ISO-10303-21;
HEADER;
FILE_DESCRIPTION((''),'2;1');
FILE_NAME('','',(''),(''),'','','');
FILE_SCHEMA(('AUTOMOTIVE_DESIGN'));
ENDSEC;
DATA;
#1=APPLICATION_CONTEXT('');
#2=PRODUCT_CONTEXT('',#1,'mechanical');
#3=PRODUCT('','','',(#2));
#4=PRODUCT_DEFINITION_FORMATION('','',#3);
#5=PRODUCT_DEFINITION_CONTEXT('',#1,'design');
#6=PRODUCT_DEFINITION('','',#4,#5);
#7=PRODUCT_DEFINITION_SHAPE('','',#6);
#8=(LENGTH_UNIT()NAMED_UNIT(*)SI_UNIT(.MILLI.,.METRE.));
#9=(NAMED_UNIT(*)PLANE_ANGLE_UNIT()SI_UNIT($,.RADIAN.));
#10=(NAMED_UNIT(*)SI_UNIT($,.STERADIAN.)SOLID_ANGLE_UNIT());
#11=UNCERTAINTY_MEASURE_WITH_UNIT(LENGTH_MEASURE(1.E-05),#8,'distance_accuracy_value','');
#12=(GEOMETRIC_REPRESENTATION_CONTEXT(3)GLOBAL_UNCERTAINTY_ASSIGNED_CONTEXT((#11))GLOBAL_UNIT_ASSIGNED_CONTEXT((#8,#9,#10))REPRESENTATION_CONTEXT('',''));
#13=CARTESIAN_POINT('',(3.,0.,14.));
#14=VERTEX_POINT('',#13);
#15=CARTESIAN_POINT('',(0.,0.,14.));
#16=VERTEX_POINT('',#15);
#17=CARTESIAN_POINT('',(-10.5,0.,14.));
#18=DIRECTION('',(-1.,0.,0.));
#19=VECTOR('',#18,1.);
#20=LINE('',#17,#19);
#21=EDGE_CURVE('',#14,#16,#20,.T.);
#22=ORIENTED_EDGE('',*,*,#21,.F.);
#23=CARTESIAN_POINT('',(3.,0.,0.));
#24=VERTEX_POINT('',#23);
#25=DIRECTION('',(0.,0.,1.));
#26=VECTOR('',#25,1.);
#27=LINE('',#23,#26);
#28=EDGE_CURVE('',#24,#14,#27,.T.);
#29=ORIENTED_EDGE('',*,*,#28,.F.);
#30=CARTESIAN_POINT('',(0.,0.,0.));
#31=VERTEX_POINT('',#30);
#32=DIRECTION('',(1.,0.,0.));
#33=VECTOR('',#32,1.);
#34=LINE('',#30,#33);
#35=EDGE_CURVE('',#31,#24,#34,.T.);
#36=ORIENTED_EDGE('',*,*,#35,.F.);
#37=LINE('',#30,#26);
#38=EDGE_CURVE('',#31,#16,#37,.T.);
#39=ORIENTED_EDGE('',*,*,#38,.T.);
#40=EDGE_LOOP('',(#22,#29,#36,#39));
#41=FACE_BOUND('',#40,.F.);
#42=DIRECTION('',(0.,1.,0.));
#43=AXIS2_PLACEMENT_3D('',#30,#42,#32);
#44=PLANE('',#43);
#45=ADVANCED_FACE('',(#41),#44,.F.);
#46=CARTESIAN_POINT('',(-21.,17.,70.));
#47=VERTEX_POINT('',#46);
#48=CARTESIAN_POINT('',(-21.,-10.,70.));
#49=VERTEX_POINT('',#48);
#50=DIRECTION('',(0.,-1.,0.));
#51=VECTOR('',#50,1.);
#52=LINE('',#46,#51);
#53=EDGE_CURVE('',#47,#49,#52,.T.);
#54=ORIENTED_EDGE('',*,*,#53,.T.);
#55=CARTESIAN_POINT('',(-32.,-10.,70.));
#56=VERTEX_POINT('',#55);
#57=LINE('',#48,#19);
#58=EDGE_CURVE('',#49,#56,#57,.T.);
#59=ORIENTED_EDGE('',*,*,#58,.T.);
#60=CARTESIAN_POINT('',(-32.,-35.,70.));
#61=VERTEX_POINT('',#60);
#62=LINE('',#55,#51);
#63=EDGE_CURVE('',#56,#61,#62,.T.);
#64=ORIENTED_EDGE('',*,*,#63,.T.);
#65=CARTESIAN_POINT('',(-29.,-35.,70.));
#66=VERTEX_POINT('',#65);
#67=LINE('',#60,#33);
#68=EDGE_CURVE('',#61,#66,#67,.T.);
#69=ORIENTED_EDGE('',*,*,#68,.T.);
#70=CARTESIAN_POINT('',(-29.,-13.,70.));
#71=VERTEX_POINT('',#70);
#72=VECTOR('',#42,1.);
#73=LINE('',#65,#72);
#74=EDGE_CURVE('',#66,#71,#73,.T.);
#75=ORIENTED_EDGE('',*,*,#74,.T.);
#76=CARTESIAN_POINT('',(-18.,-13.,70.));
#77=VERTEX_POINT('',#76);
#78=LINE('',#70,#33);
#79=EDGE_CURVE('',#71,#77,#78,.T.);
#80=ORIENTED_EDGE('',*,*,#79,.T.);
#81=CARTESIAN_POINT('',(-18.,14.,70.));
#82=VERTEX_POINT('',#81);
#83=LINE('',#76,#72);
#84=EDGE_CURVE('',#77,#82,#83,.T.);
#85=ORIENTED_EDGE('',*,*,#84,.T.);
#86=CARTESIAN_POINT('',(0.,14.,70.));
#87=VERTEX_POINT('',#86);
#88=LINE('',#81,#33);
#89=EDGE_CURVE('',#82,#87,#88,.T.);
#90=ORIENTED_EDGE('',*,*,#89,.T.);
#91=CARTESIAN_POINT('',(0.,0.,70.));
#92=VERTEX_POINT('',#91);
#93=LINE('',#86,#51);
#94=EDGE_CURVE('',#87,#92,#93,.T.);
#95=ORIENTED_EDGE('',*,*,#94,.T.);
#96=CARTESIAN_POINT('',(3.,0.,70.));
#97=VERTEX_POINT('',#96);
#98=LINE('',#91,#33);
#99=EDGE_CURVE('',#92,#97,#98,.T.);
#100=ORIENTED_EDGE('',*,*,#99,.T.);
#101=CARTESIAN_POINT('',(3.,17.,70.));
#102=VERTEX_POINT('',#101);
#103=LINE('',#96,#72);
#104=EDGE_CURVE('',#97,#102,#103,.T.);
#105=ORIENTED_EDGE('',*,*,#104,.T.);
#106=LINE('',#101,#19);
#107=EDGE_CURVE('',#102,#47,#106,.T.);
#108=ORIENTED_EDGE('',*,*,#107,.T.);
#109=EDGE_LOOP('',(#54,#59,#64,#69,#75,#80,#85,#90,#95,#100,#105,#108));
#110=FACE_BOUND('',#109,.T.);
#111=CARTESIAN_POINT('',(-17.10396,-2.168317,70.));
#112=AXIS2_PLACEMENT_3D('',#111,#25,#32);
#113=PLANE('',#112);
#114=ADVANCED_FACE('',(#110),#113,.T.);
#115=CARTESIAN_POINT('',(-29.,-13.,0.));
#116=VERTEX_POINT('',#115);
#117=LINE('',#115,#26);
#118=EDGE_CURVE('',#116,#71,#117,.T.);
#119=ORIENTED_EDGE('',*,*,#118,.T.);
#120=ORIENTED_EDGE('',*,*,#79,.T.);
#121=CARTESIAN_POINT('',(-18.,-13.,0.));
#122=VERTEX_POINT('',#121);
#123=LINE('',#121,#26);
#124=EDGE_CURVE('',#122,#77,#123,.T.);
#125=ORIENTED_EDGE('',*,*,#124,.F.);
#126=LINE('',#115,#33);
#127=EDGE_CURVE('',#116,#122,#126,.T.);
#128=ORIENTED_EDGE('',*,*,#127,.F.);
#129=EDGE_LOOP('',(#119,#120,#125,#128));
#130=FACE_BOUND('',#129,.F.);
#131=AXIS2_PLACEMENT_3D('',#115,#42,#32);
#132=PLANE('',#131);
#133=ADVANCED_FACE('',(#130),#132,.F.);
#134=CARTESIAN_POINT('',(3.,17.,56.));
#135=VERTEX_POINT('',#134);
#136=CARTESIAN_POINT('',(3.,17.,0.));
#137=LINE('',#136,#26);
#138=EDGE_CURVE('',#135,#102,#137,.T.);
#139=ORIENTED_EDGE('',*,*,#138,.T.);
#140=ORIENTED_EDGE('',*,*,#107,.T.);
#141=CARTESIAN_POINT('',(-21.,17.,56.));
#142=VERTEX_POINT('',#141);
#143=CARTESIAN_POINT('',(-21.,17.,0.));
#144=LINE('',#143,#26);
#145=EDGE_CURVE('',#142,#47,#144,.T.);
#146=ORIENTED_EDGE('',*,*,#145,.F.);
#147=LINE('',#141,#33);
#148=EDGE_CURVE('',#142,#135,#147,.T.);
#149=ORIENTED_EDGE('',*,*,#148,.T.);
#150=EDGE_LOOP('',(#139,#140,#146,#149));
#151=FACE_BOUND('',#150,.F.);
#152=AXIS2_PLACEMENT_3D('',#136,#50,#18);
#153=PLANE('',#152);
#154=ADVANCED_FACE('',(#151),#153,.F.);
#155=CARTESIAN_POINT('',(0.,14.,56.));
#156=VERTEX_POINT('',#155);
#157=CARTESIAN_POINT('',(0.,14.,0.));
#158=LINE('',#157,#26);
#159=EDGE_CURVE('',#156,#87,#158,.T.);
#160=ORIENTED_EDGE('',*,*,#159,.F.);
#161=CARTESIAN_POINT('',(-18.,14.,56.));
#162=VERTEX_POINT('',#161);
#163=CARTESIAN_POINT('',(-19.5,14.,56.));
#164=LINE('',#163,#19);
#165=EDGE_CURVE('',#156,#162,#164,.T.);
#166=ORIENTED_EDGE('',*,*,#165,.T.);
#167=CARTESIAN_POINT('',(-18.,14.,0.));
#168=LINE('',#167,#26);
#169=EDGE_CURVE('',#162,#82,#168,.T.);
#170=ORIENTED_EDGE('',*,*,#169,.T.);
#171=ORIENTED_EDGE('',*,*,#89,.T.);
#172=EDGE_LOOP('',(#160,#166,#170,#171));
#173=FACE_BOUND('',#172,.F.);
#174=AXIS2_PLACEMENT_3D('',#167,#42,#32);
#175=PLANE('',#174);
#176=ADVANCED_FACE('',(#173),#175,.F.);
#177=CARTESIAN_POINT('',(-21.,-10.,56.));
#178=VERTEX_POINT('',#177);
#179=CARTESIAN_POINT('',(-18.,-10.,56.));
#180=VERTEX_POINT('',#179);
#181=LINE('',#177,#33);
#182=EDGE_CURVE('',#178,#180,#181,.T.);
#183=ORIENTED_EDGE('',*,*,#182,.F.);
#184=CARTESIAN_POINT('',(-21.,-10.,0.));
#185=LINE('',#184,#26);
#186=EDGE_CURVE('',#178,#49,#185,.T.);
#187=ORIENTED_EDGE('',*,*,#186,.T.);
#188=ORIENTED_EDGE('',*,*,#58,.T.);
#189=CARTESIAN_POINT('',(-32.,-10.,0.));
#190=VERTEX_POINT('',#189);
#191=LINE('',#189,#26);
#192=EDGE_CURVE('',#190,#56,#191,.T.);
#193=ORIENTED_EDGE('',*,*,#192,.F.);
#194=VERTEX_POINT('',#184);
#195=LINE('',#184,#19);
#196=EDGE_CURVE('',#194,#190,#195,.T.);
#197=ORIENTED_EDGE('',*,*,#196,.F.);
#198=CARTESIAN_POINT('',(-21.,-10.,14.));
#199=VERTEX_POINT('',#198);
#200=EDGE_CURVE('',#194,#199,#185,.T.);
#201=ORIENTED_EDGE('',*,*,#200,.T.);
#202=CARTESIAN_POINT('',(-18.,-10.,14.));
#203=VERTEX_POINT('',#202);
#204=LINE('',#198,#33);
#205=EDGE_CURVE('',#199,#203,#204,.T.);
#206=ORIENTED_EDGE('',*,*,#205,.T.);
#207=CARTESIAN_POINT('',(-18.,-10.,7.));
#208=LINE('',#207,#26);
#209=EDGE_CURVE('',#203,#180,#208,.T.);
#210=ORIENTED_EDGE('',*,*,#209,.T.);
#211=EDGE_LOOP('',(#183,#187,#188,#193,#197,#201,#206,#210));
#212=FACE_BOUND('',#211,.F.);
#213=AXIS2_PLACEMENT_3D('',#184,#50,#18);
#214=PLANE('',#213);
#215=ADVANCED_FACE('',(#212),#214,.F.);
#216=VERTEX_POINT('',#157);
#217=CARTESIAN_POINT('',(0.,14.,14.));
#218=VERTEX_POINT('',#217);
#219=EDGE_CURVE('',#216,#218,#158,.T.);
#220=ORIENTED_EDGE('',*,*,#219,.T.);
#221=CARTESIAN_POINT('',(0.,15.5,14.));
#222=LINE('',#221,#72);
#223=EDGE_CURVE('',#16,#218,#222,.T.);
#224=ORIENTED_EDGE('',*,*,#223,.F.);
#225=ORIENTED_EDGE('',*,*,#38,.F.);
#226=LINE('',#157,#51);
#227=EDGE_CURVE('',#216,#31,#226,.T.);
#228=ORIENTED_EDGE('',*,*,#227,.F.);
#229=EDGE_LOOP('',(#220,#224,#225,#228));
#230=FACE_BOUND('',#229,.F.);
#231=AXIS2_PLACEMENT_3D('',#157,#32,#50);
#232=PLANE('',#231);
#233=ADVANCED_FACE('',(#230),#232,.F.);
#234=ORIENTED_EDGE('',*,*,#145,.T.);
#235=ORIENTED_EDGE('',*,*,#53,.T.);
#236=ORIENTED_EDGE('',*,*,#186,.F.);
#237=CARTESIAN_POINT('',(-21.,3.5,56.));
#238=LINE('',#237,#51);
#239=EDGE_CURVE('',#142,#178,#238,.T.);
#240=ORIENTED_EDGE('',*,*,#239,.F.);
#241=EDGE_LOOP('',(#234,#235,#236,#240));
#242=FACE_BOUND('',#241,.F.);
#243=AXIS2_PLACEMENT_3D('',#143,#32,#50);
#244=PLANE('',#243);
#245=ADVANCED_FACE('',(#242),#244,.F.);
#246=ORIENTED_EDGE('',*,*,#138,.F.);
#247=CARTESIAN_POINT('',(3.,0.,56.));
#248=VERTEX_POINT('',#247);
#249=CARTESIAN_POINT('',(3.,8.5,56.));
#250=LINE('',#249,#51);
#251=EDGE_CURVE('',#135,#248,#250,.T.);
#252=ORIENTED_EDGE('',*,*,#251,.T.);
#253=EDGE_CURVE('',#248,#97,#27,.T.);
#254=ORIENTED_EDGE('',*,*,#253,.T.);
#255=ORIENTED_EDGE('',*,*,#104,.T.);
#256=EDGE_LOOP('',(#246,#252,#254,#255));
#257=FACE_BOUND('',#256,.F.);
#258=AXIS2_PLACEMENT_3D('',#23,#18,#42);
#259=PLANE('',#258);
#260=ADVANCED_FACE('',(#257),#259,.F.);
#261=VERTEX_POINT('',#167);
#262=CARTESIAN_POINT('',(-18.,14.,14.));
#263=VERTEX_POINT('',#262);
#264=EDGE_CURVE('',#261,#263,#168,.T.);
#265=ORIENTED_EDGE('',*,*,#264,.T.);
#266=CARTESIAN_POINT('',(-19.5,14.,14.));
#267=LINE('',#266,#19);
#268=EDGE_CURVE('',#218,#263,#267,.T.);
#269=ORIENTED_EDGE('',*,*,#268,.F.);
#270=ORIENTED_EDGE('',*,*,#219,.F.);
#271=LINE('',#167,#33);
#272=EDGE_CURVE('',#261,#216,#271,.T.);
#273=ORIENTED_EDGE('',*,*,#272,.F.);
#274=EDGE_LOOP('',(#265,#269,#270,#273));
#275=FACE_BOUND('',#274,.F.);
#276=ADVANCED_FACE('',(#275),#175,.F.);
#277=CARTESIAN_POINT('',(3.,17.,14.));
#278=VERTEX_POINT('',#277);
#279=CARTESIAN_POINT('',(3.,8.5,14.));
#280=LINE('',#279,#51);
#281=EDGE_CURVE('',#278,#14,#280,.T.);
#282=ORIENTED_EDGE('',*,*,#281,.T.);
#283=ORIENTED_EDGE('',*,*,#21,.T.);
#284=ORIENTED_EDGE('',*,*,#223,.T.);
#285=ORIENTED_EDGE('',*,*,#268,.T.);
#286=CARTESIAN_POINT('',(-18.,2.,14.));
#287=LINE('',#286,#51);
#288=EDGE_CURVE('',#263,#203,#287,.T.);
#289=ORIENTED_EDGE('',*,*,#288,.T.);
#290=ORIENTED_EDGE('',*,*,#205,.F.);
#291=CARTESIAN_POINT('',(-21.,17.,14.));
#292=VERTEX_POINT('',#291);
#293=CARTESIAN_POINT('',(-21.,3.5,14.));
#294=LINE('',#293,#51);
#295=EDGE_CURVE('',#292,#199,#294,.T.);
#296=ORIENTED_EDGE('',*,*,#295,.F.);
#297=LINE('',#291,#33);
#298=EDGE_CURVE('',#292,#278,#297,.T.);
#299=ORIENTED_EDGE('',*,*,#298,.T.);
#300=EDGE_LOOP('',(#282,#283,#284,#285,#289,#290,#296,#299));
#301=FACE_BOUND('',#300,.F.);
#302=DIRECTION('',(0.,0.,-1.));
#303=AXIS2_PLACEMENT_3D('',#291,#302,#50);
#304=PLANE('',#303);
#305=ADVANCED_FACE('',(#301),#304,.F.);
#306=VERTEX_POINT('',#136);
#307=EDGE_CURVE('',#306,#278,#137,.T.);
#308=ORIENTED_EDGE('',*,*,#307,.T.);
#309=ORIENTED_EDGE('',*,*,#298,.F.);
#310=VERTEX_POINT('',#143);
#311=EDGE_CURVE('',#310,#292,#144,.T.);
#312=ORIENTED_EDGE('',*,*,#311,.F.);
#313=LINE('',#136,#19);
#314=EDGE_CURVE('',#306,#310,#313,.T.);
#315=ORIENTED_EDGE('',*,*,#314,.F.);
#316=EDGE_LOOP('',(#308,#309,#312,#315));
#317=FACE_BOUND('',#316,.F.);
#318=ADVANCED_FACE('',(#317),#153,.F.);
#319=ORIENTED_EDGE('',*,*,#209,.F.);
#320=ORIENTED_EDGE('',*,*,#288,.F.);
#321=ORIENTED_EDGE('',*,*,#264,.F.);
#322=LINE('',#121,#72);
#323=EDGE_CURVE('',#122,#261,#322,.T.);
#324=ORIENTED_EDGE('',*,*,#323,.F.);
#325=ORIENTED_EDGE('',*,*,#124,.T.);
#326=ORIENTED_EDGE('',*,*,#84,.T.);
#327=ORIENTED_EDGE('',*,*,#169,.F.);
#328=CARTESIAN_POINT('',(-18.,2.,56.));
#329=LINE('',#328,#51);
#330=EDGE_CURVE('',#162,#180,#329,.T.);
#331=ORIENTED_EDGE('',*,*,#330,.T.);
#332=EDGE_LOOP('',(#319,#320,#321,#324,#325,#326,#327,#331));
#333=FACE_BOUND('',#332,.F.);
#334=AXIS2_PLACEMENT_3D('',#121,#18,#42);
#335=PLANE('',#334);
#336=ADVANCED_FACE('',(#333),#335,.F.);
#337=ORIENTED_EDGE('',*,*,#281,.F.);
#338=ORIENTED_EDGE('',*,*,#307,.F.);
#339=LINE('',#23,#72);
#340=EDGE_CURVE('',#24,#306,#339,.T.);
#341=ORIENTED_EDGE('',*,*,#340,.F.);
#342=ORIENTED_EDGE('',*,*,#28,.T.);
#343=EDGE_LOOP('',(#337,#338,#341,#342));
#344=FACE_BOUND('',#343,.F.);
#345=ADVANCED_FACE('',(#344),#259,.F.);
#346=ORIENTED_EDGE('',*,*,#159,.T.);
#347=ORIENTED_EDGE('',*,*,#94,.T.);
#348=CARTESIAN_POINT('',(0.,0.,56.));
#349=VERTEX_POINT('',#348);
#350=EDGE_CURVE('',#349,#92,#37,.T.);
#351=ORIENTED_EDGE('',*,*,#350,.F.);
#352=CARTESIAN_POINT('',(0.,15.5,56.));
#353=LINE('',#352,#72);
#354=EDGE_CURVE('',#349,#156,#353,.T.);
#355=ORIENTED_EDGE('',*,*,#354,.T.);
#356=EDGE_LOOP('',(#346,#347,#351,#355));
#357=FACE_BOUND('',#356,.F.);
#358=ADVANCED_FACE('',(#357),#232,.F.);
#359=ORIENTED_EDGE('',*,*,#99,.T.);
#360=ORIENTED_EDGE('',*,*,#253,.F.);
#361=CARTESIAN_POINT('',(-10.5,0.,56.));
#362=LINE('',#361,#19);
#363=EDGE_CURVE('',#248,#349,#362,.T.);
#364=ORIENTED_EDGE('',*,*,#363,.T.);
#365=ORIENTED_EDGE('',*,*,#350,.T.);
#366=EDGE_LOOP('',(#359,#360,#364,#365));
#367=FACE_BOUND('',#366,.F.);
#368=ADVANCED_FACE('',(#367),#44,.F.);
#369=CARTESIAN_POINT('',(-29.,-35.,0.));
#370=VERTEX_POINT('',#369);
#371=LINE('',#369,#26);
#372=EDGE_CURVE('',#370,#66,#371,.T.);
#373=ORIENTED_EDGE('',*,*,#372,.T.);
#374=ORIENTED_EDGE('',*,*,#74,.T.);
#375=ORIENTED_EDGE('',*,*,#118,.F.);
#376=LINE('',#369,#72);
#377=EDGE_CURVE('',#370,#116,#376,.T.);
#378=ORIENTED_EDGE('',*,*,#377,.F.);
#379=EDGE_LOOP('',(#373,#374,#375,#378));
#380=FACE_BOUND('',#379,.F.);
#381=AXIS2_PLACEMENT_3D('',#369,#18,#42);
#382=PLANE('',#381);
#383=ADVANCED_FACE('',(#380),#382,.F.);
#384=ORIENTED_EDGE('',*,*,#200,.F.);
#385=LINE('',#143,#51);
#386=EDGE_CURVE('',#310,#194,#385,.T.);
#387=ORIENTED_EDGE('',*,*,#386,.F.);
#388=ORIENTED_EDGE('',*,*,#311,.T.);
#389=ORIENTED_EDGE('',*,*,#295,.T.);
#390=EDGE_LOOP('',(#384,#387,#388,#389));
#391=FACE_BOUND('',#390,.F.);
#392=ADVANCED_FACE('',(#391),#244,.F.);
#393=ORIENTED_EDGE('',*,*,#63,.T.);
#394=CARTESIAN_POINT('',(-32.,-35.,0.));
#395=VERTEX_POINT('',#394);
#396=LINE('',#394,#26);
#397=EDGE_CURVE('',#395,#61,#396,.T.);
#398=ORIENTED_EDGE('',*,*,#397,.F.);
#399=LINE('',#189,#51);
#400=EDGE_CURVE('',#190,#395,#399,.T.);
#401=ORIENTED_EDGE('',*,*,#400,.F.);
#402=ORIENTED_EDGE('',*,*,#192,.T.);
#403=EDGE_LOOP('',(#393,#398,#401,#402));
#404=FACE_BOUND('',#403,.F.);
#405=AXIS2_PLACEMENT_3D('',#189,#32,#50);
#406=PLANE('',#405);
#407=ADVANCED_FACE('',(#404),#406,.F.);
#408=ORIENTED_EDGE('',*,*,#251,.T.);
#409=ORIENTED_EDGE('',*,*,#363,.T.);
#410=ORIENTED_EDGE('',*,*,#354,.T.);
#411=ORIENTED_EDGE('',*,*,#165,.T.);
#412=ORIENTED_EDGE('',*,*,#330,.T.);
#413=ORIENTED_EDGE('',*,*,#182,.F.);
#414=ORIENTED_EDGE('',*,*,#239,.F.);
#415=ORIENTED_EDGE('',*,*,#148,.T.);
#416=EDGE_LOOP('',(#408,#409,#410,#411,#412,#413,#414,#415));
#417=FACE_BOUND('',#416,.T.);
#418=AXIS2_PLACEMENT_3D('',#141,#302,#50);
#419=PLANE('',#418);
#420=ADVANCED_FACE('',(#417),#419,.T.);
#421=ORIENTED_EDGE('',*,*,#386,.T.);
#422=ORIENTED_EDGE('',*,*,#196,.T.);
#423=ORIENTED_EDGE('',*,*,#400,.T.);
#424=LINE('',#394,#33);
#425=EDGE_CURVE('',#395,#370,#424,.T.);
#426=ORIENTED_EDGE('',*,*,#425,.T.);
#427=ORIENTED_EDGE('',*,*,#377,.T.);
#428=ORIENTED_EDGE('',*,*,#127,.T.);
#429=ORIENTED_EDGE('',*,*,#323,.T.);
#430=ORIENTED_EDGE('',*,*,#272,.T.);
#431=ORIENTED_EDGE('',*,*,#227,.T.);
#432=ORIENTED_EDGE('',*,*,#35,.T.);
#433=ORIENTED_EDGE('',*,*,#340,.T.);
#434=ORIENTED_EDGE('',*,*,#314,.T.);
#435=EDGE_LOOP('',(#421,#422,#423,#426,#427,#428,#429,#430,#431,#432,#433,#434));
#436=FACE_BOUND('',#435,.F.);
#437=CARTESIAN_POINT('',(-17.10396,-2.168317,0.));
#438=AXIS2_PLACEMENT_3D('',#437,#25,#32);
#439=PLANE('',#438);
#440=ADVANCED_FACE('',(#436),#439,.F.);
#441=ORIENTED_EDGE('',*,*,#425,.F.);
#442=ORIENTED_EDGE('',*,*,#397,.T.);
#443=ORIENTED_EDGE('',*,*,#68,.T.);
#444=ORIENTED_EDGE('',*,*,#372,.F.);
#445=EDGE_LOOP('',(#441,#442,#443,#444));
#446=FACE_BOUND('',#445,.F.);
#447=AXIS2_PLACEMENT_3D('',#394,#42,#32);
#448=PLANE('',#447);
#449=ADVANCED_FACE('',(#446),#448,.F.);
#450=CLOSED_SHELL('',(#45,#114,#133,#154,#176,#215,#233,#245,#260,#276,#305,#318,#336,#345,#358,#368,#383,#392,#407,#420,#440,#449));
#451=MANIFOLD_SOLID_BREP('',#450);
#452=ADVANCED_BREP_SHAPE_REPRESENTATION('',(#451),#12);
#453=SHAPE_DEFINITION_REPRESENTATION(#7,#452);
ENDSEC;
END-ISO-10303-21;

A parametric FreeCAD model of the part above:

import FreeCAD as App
import Part
import Sketcher

doc = App.newDocument("Part")
body = doc.addObject("PartDesign::Body", "Body")

sketch1 = doc.addObject("Sketcher::SketchObject", "Sketch")
body.addObject(sketch1)
sketch1.AttachmentSupport = (doc.XY_Plane, [""])
sketch1.MapMode = "FlatFace"
sketch1.addGeometry([
    Part.LineSegment(App.Vector(0, 14, 0), App.Vector(0, 0, 0)),
    Part.LineSegment(App.Vector(0, 0, 0), App.Vector(3, 0, 0)),
    Part.LineSegment(App.Vector(3, 0, 0), App.Vector(3, 17, 0)),
    Part.LineSegment(App.Vector(3, 17, 0), App.Vector(-21, 17, 0)),
    Part.LineSegment(App.Vector(-21, 17, 0), App.Vector(-21, -10, 0)),
    Part.LineSegment(App.Vector(-21, -10, 0), App.Vector(-32, -10, 0)),
    Part.LineSegment(App.Vector(-32, -10, 0), App.Vector(-32, -35, 0)),
    Part.LineSegment(App.Vector(-32, -35, 0), App.Vector(-29, -35, 0)),
    Part.LineSegment(App.Vector(-29, -35, 0), App.Vector(-29, -13, 0)),
    Part.LineSegment(App.Vector(-29, -13, 0), App.Vector(-18, -13, 0)),
    Part.LineSegment(App.Vector(-18, -13, 0), App.Vector(-18, 14, 0)),
    Part.LineSegment(App.Vector(-18, 14, 0), App.Vector(0, 14, 0)),
], False)
sketch1.addConstraint([
    Sketcher.Constraint("Coincident", 0, 2, 1, 1),
    Sketcher.Constraint("Coincident", 1, 2, 2, 1),
    Sketcher.Constraint("Coincident", 2, 2, 3, 1),
    Sketcher.Constraint("Coincident", 3, 2, 4, 1),
    Sketcher.Constraint("Coincident", 4, 2, 5, 1),
    Sketcher.Constraint("Coincident", 5, 2, 6, 1),
    Sketcher.Constraint("Coincident", 6, 2, 7, 1),
    Sketcher.Constraint("Coincident", 7, 2, 8, 1),
    Sketcher.Constraint("Coincident", 8, 2, 9, 1),
    Sketcher.Constraint("Coincident", 9, 2, 10, 1),
    Sketcher.Constraint("Coincident", 10, 2, 11, 1),
    Sketcher.Constraint("Coincident", 11, 2, 0, 1),
    Sketcher.Constraint("Vertical", 0),
    Sketcher.Constraint("Horizontal", 1),
    Sketcher.Constraint("Vertical", 2),
    Sketcher.Constraint("Horizontal", 3),
    Sketcher.Constraint("Vertical", 4),
    Sketcher.Constraint("Horizontal", 5),
    Sketcher.Constraint("Vertical", 6),
    Sketcher.Constraint("Horizontal", 7),
    Sketcher.Constraint("Vertical", 8),
    Sketcher.Constraint("Horizontal", 9),
    Sketcher.Constraint("Vertical", 10),
    Sketcher.Constraint("Horizontal", 11),
    Sketcher.Constraint("Coincident", 0, 2, -1, 1),
    Sketcher.Constraint("Equal", 1, 7),
    Sketcher.Constraint("Equal", 5, 9),
    Sketcher.Constraint("Equal", 4, 10),
    Sketcher.Constraint("DistanceX", 1, 1, 1, 2, 3.0),
    Sketcher.Constraint("DistanceX", 3, 2, 3, 1, 24.0),
    Sketcher.Constraint("DistanceX", 5, 2, 5, 1, 11.0),
    Sketcher.Constraint("DistanceY", 0, 2, 0, 1, 14.0),
    Sketcher.Constraint("DistanceY", 2, 1, 2, 2, 17.0),
    Sketcher.Constraint("DistanceY", 4, 2, 4, 1, 27.0),
    Sketcher.Constraint("DistanceY", 6, 2, 6, 1, 25.0),
])
pad1 = doc.addObject("PartDesign::Pad", "Pad")
body.addObject(pad1)
pad1.Profile = sketch1
pad1.Length = 70

sketch2 = doc.addObject("Sketcher::SketchObject", "Sketch001")
body.addObject(sketch2)
sketch2.AttachmentSupport = (doc.YZ_Plane, [""])
sketch2.MapMode = "FlatFace"
sketch2.AttachmentOffset = App.Placement(App.Vector(0, 0, -21), App.Rotation())
sketch2.addGeometry([
    Part.LineSegment(App.Vector(17, 56, 0), App.Vector(17, 14, 0)),
    Part.LineSegment(App.Vector(17, 14, 0), App.Vector(-10, 14, 0)),
    Part.LineSegment(App.Vector(-10, 14, 0), App.Vector(-10, 56, 0)),
    Part.LineSegment(App.Vector(-10, 56, 0), App.Vector(17, 56, 0)),
], False)
sketch2.addConstraint([
    Sketcher.Constraint("Coincident", 0, 2, 1, 1),
    Sketcher.Constraint("Coincident", 1, 2, 2, 1),
    Sketcher.Constraint("Coincident", 2, 2, 3, 1),
    Sketcher.Constraint("Coincident", 3, 2, 0, 1),
    Sketcher.Constraint("Vertical", 0),
    Sketcher.Constraint("Horizontal", 1),
    Sketcher.Constraint("Vertical", 2),
    Sketcher.Constraint("Horizontal", 3),
    Sketcher.Constraint("DistanceX", 1, 2, 1, 1, 27.0),
    Sketcher.Constraint("DistanceY", 0, 2, 0, 1, 42.0),
    Sketcher.Constraint("DistanceX", -1, 1, 0, 2, 17.0),
    Sketcher.Constraint("DistanceY", -1, 1, 0, 2, 14.0),
])
pocket1 = doc.addObject("PartDesign::Pocket", "Pocket")
body.addObject(pocket1)
pocket1.Profile = sketch2
pocket1.Length = 25
pocket1.Reversed = True

doc.recompute()
